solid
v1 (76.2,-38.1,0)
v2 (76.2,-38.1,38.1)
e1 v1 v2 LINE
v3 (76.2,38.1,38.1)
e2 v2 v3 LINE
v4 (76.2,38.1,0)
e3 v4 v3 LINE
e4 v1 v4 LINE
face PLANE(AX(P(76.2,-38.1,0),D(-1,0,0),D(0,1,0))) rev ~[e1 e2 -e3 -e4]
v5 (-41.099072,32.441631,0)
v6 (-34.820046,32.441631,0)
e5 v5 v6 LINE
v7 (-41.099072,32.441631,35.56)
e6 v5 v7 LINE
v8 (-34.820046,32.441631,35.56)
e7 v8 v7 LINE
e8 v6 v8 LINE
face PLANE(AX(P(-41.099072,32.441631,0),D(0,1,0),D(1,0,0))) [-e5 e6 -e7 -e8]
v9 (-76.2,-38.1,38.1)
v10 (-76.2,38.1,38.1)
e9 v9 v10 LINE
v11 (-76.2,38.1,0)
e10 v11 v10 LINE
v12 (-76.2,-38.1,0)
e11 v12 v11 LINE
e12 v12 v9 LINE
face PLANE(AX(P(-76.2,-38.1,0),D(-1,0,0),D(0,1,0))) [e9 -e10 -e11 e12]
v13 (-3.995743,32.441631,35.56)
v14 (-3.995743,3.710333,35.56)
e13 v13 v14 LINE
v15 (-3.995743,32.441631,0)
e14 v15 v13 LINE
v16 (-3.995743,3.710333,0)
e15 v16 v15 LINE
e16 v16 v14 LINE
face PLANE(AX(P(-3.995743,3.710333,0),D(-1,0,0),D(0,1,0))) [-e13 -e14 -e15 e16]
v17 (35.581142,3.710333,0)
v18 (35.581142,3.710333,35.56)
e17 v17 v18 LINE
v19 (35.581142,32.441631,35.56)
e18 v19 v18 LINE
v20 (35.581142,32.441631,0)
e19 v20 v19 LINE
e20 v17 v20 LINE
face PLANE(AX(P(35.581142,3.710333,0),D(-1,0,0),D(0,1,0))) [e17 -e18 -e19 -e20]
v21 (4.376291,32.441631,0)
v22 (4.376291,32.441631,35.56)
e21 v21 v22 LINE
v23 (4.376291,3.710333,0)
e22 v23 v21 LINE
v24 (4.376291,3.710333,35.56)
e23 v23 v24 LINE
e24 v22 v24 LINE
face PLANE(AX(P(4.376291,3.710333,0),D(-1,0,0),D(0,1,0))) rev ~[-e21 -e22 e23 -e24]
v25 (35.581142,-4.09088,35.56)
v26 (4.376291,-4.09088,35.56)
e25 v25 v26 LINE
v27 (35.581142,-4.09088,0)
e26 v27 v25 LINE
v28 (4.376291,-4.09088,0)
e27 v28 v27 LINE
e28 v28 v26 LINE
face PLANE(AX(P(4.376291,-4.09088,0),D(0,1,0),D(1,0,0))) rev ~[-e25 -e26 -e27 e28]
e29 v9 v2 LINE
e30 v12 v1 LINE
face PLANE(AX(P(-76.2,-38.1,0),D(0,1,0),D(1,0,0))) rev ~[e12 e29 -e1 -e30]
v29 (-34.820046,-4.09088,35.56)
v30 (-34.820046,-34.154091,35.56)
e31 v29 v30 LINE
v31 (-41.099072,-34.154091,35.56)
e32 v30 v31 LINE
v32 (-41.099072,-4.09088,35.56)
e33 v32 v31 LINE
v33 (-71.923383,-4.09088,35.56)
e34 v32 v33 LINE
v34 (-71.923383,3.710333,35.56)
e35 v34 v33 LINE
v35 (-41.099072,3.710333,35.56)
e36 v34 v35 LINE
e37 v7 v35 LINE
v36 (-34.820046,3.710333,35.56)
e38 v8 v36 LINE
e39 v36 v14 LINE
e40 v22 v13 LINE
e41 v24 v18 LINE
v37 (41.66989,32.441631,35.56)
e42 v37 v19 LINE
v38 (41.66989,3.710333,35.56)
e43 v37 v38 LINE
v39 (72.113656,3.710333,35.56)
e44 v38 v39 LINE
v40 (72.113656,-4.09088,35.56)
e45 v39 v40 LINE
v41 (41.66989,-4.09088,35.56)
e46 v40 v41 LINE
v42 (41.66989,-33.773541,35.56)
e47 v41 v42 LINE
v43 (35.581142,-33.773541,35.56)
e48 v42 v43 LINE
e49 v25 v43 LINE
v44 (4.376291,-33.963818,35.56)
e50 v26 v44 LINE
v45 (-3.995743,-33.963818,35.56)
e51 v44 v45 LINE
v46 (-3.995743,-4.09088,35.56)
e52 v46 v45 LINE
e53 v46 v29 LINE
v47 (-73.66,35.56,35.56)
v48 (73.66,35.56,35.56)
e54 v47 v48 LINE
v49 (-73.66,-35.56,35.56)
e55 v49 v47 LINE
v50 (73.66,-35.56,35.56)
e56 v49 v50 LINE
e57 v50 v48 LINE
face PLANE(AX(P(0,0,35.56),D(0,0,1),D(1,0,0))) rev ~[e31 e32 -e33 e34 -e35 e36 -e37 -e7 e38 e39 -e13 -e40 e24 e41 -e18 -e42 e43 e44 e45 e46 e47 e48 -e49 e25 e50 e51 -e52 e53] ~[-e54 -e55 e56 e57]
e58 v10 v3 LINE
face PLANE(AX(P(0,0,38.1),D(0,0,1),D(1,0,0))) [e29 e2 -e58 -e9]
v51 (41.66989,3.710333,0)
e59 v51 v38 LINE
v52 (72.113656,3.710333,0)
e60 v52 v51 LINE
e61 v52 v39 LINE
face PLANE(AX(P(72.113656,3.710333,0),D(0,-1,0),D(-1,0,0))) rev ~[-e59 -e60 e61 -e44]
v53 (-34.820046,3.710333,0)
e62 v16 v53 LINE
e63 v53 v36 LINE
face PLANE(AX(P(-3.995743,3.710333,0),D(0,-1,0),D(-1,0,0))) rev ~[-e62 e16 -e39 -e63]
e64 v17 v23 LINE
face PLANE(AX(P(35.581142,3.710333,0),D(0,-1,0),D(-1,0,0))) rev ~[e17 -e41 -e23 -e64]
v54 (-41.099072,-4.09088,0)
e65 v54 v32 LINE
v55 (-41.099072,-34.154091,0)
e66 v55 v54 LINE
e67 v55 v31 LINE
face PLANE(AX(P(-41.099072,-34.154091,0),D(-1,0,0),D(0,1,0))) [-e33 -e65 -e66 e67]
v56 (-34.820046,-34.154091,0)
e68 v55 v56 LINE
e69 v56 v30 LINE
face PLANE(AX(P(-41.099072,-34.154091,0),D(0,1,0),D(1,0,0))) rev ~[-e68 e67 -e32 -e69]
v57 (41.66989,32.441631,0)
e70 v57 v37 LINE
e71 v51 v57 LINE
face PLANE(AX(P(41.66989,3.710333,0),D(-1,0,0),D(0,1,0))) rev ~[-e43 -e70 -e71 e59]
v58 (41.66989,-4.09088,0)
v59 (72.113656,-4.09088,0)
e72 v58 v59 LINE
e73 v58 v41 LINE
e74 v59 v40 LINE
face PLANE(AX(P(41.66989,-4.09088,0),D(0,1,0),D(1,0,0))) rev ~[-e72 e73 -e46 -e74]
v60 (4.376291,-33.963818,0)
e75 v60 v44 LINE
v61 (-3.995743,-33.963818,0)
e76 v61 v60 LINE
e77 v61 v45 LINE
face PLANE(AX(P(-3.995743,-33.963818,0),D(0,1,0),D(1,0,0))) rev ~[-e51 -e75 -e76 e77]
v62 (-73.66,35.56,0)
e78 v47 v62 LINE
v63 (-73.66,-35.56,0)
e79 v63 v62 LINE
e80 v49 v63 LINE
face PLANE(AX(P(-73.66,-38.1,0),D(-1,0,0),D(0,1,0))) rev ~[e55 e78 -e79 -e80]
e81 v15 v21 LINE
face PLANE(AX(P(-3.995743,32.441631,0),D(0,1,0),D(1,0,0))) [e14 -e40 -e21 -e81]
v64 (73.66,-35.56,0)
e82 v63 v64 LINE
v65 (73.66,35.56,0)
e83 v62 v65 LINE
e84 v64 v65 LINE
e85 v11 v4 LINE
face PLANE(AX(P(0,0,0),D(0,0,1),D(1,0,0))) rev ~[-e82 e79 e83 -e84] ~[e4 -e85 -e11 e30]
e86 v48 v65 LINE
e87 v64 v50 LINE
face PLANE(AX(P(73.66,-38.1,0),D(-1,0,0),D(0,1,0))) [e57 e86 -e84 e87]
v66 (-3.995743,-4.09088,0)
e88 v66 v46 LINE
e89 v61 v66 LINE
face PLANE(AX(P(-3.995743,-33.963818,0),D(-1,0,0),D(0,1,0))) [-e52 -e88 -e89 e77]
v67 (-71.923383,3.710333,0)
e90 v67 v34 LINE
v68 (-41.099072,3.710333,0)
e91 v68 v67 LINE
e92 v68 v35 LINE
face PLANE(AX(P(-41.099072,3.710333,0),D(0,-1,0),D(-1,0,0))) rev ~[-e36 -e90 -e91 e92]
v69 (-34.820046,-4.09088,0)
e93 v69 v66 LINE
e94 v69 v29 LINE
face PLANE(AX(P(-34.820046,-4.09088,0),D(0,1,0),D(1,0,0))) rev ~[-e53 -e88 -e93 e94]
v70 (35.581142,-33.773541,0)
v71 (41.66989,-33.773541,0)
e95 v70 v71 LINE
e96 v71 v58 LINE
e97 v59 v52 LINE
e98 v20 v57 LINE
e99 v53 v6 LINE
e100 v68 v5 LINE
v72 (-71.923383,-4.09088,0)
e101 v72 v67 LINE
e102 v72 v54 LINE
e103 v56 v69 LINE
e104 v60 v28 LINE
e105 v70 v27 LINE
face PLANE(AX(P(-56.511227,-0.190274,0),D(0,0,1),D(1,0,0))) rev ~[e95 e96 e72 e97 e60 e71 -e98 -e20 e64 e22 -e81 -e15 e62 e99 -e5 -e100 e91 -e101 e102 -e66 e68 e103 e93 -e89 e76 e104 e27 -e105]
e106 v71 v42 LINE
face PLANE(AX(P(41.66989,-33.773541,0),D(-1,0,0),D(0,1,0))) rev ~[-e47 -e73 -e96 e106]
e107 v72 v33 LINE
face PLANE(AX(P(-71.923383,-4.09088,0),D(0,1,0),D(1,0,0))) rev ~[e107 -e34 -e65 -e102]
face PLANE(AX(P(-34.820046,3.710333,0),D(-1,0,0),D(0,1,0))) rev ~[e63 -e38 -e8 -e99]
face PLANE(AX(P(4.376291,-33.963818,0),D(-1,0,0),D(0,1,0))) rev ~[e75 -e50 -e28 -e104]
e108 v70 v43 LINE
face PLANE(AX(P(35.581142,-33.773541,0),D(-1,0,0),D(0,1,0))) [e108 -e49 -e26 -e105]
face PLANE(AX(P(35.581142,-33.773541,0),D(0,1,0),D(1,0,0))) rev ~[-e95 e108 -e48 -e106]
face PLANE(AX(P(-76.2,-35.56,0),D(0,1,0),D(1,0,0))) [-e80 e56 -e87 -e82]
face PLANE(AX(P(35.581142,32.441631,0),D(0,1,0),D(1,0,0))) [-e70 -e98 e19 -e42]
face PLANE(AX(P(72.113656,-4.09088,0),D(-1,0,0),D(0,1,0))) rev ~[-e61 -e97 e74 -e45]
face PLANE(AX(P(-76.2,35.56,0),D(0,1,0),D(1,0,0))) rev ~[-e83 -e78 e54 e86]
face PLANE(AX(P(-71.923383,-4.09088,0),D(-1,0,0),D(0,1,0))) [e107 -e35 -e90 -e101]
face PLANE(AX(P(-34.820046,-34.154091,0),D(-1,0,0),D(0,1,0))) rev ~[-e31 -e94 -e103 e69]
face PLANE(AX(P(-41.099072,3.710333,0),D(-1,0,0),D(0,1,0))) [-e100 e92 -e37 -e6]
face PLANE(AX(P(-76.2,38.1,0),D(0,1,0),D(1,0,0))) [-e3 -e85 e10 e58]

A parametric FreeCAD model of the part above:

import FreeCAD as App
import Part
import Sketcher
from FreeCAD import Vector
Q = App.Units.Quantity


def faces_at(feature, points):
    """Names of the faces that lie closest to the given points."""
    faces = feature.Shape.Faces
    near = lambda p: min(range(len(faces)), key=lambda i: faces[i].distToShape(Part.Vertex(*p))[0])
    return sorted({f"Face{near(p) + 1}" for p in points})

doc = App.newDocument("Part")
params = doc.addObject("Spreadsheet::Sheet", "Params")
for row, (alias, value) in enumerate([
    ("sketch1_width", "6 in"),
    ("sketch1_height", "3 in"),
    ("pad1_length", "1.5 in"),
    ("thickness_wall", "0.1 in"),
    ("pad2_length", "1.5 in"),
], start=1):
    params.set(f"A{row}", alias)
    params.set(f"B{row}", "=" + value)
    params.setAlias(f"B{row}", alias)

body = doc.addObject("PartDesign::Body", "Body")

sketch1 = body.newObject("Sketcher::SketchObject", "Sketch")
sketch1.AttachmentSupport = (doc.getObject("XY_Plane"), [""])
sketch1.MapMode = "FlatFace"
sketch1.addGeometry(Part.LineSegment(Vector(-76, 38, 0), Vector(-76, -38, 0)), False)
sketch1.addGeometry(Part.LineSegment(Vector(-76, -38, 0), Vector(76, -38, 0)), False)
sketch1.addGeometry(Part.LineSegment(Vector(76, -38, 0), Vector(76, 38, 0)), False)
sketch1.addGeometry(Part.LineSegment(Vector(76, 38, 0), Vector(-76, 38, 0)), False)
sketch1.addConstraint(Sketcher.Constraint("Coincident", 0, 2, 1, 1))
sketch1.addConstraint(Sketcher.Constraint("Coincident", 1, 2, 2, 1))
sketch1.addConstraint(Sketcher.Constraint("Coincident", 2, 2, 3, 1))
sketch1.addConstraint(Sketcher.Constraint("Coincident", 3, 2, 0, 1))
sketch1.addConstraint(Sketcher.Constraint("Vertical", 0))
sketch1.addConstraint(Sketcher.Constraint("Horizontal", 1))
sketch1.addConstraint(Sketcher.Constraint("Vertical", 2))
sketch1.addConstraint(Sketcher.Constraint("Horizontal", 3))
sketch1.addConstraint(Sketcher.Constraint("Symmetric", 0, 2, 2, 2, -1, 1))
sketch1.addConstraint(Sketcher.Constraint("DistanceX", 1, 1, 1, 2, Q("6 in")))
sketch1.addConstraint(Sketcher.Constraint("DistanceY", 0, 2, 0, 1, Q("3 in")))
sketch1.setExpression("Constraints[9]", "Params.sketch1_width")
sketch1.setExpression("Constraints[10]", "Params.sketch1_height")
pad1 = body.newObject("PartDesign::Pad", "Pad")
pad1.Profile = sketch1
pad1.setExpression("Length", "Params.pad1_length")
doc.recompute()

thickness = body.newObject("PartDesign::Thickness", "Thickness")
thickness.Base = (pad1, faces_at(pad1, [(0, 0, 0)]))
thickness.setExpression("Value", "Params.thickness_wall")
thickness.Reversed = True
thickness.Join = "Arc"

sketch2 = body.newObject("Sketcher::SketchObject", "Sketch001")
sketch2.AttachmentSupport = (doc.getObject("XY_Plane"), [""])
sketch2.MapMode = "FlatFace"
sketch2.addGeometry(Part.LineSegment(Vector(-72, 4, 0), Vector(-72, -4, 0)), False)
sketch2.addGeometry(Part.LineSegment(Vector(-72, -4, 0), Vector(-41, -4, 0)), False)
sketch2.addGeometry(Part.LineSegment(Vector(-41, -4, 0), Vector(-41, -34, 0)), False)
sketch2.addGeometry(Part.LineSegment(Vector(-41, -34, 0), Vector(-35, -34, 0)), False)
sketch2.addGeometry(Part.LineSegment(Vector(-35, -34, 0), Vector(-35, -4, 0)), False)
sketch2.addGeometry(Part.LineSegment(Vector(-35, -4, 0), Vector(-4, -4, 0)), False)
sketch2.addGeometry(Part.LineSegment(Vector(-4, -4, 0), Vector(-4, -34, 0)), False)
sketch2.addGeometry(Part.LineSegment(Vector(-4, -34, 0), Vector(4, -34, 0)), False)
sketch2.addGeometry(Part.LineSegment(Vector(4, -34, 0), Vector(4, -4, 0)), False)
sketch2.addGeometry(Part.LineSegment(Vector(4, -4, 0), Vector(36, -4, 0)), False)
sketch2.addGeometry(Part.LineSegment(Vector(36, -4, 0), Vector(36, -34, 0)), False)
sketch2.addGeometry(Part.LineSegment(Vector(36, -34, 0), Vector(42, -34, 0)), False)
sketch2.addGeometry(Part.LineSegment(Vector(42, -34, 0), Vector(42, -4, 0)), False)
sketch2.addGeometry(Part.LineSegment(Vector(42, -4, 0), Vector(72, -4, 0)), False)
sketch2.addGeometry(Part.LineSegment(Vector(72, -4, 0), Vector(72, 4, 0)), False)
sketch2.addGeometry(Part.LineSegment(Vector(72, 4, 0), Vector(42, 4, 0)), False)
sketch2.addGeometry(Part.LineSegment(Vector(42, 4, 0), Vector(42, 32, 0)), False)
sketch2.addGeometry(Part.LineSegment(Vector(42, 32, 0), Vector(36, 32, 0)), False)
sketch2.addGeometry(Part.LineSegment(Vector(36, 32, 0), Vector(36, 4, 0)), False)
sketch2.addGeometry(Part.LineSegment(Vector(36, 4, 0), Vector(4, 4, 0)), False)
sketch2.addGeometry(Part.LineSegment(Vector(4, 4, 0), Vector(4, 32, 0)), False)
sketch2.addGeometry(Part.LineSegment(Vector(4, 32, 0), Vector(-4, 32, 0)), False)
sketch2.addGeometry(Part.LineSegment(Vector(-4, 32, 0), Vector(-4, 4, 0)), False)
sketch2.addGeometry(Part.LineSegment(Vector(-4, 4, 0), Vector(-35, 4, 0)), False)
sketch2.addGeometry(Part.LineSegment(Vector(-35, 4, 0), Vector(-35, 32, 0)), False)
sketch2.addGeometry(Part.LineSegment(Vector(-35, 32, 0), Vector(-41, 32, 0)), False)
sketch2.addGeometry(Part.LineSegment(Vector(-41, 32, 0), Vector(-41, 4, 0)), False)
sketch2.addGeometry(Part.LineSegment(Vector(-41, 4, 0), Vector(-72, 4, 0)), False)
sketch2.addConstraint(Sketcher.Constraint("Coincident", 0, 2, 1, 1))
sketch2.addConstraint(Sketcher.Constraint("Coincident", 1, 2, 2, 1))
sketch2.addConstraint(Sketcher.Constraint("Coincident", 2, 2, 3, 1))
sketch2.addConstraint(Sketcher.Constraint("Coincident", 3, 2, 4, 1))
sketch2.addConstraint(Sketcher.Constraint("Coincident", 4, 2, 5, 1))
sketch2.addConstraint(Sketcher.Constraint("Coincident", 5, 2, 6, 1))
sketch2.addConstraint(Sketcher.Constraint("Coincident", 6, 2, 7, 1))
sketch2.addConstraint(Sketcher.Constraint("Coincident", 7, 2, 8, 1))
sketch2.addConstraint(Sketcher.Constraint("Coincident", 8, 2, 9, 1))
sketch2.addConstraint(Sketcher.Constraint("Coincident", 9, 2, 10, 1))
sketch2.addConstraint(Sketcher.Constraint("Coincident", 10, 2, 11, 1))
sketch2.addConstraint(Sketcher.Constraint("Coincident", 11, 2, 12, 1))
sketch2.addConstraint(Sketcher.Constraint("Coincident", 12, 2, 13, 1))
sketch2.addConstraint(Sketcher.Constraint("Coincident", 13, 2, 14, 1))
sketch2.addConstraint(Sketcher.Constraint("Coincident", 14, 2, 15, 1))
sketch2.addConstraint(Sketcher.Constraint("Coincident", 15, 2, 16, 1))
sketch2.addConstraint(Sketcher.Constraint("Coincident", 16, 2, 17, 1))
sketch2.addConstraint(Sketcher.Constraint("Coincident", 17, 2, 18, 1))
sketch2.addConstraint(Sketcher.Constraint("Coincident", 18, 2, 19, 1))
sketch2.addConstraint(Sketcher.Constraint("Coincident", 19, 2, 20, 1))
sketch2.addConstraint(Sketcher.Constraint("Coincident", 20, 2, 21, 1))
sketch2.addConstraint(Sketcher.Constraint("Coincident", 21, 2, 22, 1))
sketch2.addConstraint(Sketcher.Constraint("Coincident", 22, 2, 23, 1))
sketch2.addConstraint(Sketcher.Constraint("Coincident", 23, 2, 24, 1))
sketch2.addConstraint(Sketcher.Constraint("Coincident", 24, 2, 25, 1))
sketch2.addConstraint(Sketcher.Constraint("Coincident", 25, 2, 26, 1))
sketch2.addConstraint(Sketcher.Constraint("Coincident", 26, 2, 27, 1))
sketch2.addConstraint(Sketcher.Constraint("Coincident", 27, 2, 0, 1))
sketch2.addConstraint(Sketcher.Constraint("Vertical", 0))
sketch2.addConstraint(Sketcher.Constraint("Horizontal", 1))
sketch2.addConstraint(Sketcher.Constraint("Vertical", 2))
sketch2.addConstraint(Sketcher.Constraint("Horizontal", 3))
sketch2.addConstraint(Sketcher.Constraint("Vertical", 4))
sketch2.addConstraint(Sketcher.Constraint("Horizontal", 5))
sketch2.addConstraint(Sketcher.Constraint("Vertical", 6))
sketch2.addConstraint(Sketcher.Constraint("Horizontal", 7))
sketch2.addConstraint(Sketcher.Constraint("Vertical", 8))
sketch2.addConstraint(Sketcher.Constraint("Horizontal", 9))
sketch2.addConstraint(Sketcher.Constraint("Vertical", 10))
sketch2.addConstraint(Sketcher.Constraint("Horizontal", 11))
sketch2.addConstraint(Sketcher.Constraint("Vertical", 12))
sketch2.addConstraint(Sketcher.Constraint("Horizontal", 13))
sketch2.addConstraint(Sketcher.Constraint("Vertical", 14))
sketch2.addConstraint(Sketcher.Constraint("Horizontal", 15))
sketch2.addConstraint(Sketcher.Constraint("Vertical", 16))
sketch2.addConstraint(Sketcher.Constraint("Horizontal", 17))
sketch2.addConstraint(Sketcher.Constraint("Vertical", 18))
sketch2.addConstraint(Sketcher.Constraint("Horizontal", 19))
sketch2.addConstraint(Sketcher.Constraint("Vertical", 20))
sketch2.addConstraint(Sketcher.Constraint("Horizontal", 21))
sketch2.addConstraint(Sketcher.Constraint("Vertical", 22))
sketch2.addConstraint(Sketcher.Constraint("Horizontal", 23))
sketch2.addConstraint(Sketcher.Constraint("Vertical", 24))
sketch2.addConstraint(Sketcher.Constraint("Horizontal", 25))
sketch2.addConstraint(Sketcher.Constraint("Vertical", 26))
sketch2.addConstraint(Sketcher.Constraint("Horizontal", 27))
sketch2.addConstraint(Sketcher.Constraint("Horizontal", 1, 2, 4, 2))
sketch2.addConstraint(Sketcher.Constraint("Horizontal", 5, 2, 8, 2))
sketch2.addConstraint(Sketcher.Constraint("Horizontal", 9, 2, 12, 2))
sketch2.addConstraint(Sketcher.Constraint("Horizontal", 15, 2, 18, 2))
sketch2.addConstraint(Sketcher.Constraint("Horizontal", 17, 2, 20, 2))
sketch2.addConstraint(Sketcher.Constraint("Horizontal", 19, 2, 22, 2))
sketch2.addConstraint(Sketcher.Constraint("Horizontal", 21, 2, 24, 2))
sketch2.addConstraint(Sketcher.Constraint("Horizontal", 23, 2, 26, 2))
sketch2.addConstraint(Sketcher.Constraint("Vertical", 12, 2, 15, 2))
sketch2.addConstraint(Sketcher.Constraint("Vertical", 10, 2, 17, 2))
sketch2.addConstraint(Sketcher.Constraint("Vertical", 8, 2, 19, 2))
sketch2.addConstraint(Sketcher.Constraint("Vertical", 6, 2, 21, 2))
sketch2.addConstraint(Sketcher.Constraint("Vertical", 4, 2, 23, 2))
sketch2.addConstraint(Sketcher.Constraint("Vertical", 2, 2, 25, 2))
sketch2.addConstraint(Sketcher.Constraint("DistanceY", 6, 2, 6, 1, Q("1.1760999 in")))
sketch2.addConstraint(Sketcher.Constraint("DistanceY", 16, 1, 16, 2, Q("28.731298 mm")))
sketch2.addConstraint(Sketcher.Constraint("DistanceX", 1, 1, 1, 2, Q("30.824311 mm")))
sketch2.addConstraint(Sketcher.Constraint("DistanceX", 9, 1, 9, 2, Q("31.20485 mm")))
sketch2.addConstraint(Sketcher.Constraint("DistanceX", 11, 1, 11, 2, Q("6.088749 mm")))
sketch2.addConstraint(Sketcher.Constraint("DistanceY", 2, 2, 2, 1, Q("30.063211 mm")))
sketch2.addConstraint(Sketcher.Constraint("DistanceY", 10, 2, 10, 1, Q("29.682661 mm")))
sketch2.addConstraint(Sketcher.Constraint("DistanceX", 3, 1, 3, 2, Q("6.279025 mm")))
sketch2.addConstraint(Sketcher.Constraint("DistanceX", 5, 1, 5, 2, Q("30.824303 mm")))
sketch2.addConstraint(Sketcher.Constraint("DistanceX", 7, 1, 7, 2, Q("8.372034 mm")))
sketch2.addConstraint(Sketcher.Constraint("DistanceX", 13, 1, 13, 2, Q("30.443765 mm")))
sketch2.addConstraint(Sketcher.Constraint("DistanceY", 0, 2, 0, 1, Q("7.801213 mm")))
sketch2.addConstraint(Sketcher.Constraint("DistanceY", 0, 2, -1, 1, Q("4.09088 mm")))
sketch2.addConstraint(Sketcher.Constraint("DistanceX", 1, 2, -1, 1, Q("41.099072 mm")))
pad2 = body.newObject("PartDesign::Pad", "Pad001")
pad2.Profile = sketch2
pad2.setExpression("Length", "Params.pad2_length")

doc.recompute()
